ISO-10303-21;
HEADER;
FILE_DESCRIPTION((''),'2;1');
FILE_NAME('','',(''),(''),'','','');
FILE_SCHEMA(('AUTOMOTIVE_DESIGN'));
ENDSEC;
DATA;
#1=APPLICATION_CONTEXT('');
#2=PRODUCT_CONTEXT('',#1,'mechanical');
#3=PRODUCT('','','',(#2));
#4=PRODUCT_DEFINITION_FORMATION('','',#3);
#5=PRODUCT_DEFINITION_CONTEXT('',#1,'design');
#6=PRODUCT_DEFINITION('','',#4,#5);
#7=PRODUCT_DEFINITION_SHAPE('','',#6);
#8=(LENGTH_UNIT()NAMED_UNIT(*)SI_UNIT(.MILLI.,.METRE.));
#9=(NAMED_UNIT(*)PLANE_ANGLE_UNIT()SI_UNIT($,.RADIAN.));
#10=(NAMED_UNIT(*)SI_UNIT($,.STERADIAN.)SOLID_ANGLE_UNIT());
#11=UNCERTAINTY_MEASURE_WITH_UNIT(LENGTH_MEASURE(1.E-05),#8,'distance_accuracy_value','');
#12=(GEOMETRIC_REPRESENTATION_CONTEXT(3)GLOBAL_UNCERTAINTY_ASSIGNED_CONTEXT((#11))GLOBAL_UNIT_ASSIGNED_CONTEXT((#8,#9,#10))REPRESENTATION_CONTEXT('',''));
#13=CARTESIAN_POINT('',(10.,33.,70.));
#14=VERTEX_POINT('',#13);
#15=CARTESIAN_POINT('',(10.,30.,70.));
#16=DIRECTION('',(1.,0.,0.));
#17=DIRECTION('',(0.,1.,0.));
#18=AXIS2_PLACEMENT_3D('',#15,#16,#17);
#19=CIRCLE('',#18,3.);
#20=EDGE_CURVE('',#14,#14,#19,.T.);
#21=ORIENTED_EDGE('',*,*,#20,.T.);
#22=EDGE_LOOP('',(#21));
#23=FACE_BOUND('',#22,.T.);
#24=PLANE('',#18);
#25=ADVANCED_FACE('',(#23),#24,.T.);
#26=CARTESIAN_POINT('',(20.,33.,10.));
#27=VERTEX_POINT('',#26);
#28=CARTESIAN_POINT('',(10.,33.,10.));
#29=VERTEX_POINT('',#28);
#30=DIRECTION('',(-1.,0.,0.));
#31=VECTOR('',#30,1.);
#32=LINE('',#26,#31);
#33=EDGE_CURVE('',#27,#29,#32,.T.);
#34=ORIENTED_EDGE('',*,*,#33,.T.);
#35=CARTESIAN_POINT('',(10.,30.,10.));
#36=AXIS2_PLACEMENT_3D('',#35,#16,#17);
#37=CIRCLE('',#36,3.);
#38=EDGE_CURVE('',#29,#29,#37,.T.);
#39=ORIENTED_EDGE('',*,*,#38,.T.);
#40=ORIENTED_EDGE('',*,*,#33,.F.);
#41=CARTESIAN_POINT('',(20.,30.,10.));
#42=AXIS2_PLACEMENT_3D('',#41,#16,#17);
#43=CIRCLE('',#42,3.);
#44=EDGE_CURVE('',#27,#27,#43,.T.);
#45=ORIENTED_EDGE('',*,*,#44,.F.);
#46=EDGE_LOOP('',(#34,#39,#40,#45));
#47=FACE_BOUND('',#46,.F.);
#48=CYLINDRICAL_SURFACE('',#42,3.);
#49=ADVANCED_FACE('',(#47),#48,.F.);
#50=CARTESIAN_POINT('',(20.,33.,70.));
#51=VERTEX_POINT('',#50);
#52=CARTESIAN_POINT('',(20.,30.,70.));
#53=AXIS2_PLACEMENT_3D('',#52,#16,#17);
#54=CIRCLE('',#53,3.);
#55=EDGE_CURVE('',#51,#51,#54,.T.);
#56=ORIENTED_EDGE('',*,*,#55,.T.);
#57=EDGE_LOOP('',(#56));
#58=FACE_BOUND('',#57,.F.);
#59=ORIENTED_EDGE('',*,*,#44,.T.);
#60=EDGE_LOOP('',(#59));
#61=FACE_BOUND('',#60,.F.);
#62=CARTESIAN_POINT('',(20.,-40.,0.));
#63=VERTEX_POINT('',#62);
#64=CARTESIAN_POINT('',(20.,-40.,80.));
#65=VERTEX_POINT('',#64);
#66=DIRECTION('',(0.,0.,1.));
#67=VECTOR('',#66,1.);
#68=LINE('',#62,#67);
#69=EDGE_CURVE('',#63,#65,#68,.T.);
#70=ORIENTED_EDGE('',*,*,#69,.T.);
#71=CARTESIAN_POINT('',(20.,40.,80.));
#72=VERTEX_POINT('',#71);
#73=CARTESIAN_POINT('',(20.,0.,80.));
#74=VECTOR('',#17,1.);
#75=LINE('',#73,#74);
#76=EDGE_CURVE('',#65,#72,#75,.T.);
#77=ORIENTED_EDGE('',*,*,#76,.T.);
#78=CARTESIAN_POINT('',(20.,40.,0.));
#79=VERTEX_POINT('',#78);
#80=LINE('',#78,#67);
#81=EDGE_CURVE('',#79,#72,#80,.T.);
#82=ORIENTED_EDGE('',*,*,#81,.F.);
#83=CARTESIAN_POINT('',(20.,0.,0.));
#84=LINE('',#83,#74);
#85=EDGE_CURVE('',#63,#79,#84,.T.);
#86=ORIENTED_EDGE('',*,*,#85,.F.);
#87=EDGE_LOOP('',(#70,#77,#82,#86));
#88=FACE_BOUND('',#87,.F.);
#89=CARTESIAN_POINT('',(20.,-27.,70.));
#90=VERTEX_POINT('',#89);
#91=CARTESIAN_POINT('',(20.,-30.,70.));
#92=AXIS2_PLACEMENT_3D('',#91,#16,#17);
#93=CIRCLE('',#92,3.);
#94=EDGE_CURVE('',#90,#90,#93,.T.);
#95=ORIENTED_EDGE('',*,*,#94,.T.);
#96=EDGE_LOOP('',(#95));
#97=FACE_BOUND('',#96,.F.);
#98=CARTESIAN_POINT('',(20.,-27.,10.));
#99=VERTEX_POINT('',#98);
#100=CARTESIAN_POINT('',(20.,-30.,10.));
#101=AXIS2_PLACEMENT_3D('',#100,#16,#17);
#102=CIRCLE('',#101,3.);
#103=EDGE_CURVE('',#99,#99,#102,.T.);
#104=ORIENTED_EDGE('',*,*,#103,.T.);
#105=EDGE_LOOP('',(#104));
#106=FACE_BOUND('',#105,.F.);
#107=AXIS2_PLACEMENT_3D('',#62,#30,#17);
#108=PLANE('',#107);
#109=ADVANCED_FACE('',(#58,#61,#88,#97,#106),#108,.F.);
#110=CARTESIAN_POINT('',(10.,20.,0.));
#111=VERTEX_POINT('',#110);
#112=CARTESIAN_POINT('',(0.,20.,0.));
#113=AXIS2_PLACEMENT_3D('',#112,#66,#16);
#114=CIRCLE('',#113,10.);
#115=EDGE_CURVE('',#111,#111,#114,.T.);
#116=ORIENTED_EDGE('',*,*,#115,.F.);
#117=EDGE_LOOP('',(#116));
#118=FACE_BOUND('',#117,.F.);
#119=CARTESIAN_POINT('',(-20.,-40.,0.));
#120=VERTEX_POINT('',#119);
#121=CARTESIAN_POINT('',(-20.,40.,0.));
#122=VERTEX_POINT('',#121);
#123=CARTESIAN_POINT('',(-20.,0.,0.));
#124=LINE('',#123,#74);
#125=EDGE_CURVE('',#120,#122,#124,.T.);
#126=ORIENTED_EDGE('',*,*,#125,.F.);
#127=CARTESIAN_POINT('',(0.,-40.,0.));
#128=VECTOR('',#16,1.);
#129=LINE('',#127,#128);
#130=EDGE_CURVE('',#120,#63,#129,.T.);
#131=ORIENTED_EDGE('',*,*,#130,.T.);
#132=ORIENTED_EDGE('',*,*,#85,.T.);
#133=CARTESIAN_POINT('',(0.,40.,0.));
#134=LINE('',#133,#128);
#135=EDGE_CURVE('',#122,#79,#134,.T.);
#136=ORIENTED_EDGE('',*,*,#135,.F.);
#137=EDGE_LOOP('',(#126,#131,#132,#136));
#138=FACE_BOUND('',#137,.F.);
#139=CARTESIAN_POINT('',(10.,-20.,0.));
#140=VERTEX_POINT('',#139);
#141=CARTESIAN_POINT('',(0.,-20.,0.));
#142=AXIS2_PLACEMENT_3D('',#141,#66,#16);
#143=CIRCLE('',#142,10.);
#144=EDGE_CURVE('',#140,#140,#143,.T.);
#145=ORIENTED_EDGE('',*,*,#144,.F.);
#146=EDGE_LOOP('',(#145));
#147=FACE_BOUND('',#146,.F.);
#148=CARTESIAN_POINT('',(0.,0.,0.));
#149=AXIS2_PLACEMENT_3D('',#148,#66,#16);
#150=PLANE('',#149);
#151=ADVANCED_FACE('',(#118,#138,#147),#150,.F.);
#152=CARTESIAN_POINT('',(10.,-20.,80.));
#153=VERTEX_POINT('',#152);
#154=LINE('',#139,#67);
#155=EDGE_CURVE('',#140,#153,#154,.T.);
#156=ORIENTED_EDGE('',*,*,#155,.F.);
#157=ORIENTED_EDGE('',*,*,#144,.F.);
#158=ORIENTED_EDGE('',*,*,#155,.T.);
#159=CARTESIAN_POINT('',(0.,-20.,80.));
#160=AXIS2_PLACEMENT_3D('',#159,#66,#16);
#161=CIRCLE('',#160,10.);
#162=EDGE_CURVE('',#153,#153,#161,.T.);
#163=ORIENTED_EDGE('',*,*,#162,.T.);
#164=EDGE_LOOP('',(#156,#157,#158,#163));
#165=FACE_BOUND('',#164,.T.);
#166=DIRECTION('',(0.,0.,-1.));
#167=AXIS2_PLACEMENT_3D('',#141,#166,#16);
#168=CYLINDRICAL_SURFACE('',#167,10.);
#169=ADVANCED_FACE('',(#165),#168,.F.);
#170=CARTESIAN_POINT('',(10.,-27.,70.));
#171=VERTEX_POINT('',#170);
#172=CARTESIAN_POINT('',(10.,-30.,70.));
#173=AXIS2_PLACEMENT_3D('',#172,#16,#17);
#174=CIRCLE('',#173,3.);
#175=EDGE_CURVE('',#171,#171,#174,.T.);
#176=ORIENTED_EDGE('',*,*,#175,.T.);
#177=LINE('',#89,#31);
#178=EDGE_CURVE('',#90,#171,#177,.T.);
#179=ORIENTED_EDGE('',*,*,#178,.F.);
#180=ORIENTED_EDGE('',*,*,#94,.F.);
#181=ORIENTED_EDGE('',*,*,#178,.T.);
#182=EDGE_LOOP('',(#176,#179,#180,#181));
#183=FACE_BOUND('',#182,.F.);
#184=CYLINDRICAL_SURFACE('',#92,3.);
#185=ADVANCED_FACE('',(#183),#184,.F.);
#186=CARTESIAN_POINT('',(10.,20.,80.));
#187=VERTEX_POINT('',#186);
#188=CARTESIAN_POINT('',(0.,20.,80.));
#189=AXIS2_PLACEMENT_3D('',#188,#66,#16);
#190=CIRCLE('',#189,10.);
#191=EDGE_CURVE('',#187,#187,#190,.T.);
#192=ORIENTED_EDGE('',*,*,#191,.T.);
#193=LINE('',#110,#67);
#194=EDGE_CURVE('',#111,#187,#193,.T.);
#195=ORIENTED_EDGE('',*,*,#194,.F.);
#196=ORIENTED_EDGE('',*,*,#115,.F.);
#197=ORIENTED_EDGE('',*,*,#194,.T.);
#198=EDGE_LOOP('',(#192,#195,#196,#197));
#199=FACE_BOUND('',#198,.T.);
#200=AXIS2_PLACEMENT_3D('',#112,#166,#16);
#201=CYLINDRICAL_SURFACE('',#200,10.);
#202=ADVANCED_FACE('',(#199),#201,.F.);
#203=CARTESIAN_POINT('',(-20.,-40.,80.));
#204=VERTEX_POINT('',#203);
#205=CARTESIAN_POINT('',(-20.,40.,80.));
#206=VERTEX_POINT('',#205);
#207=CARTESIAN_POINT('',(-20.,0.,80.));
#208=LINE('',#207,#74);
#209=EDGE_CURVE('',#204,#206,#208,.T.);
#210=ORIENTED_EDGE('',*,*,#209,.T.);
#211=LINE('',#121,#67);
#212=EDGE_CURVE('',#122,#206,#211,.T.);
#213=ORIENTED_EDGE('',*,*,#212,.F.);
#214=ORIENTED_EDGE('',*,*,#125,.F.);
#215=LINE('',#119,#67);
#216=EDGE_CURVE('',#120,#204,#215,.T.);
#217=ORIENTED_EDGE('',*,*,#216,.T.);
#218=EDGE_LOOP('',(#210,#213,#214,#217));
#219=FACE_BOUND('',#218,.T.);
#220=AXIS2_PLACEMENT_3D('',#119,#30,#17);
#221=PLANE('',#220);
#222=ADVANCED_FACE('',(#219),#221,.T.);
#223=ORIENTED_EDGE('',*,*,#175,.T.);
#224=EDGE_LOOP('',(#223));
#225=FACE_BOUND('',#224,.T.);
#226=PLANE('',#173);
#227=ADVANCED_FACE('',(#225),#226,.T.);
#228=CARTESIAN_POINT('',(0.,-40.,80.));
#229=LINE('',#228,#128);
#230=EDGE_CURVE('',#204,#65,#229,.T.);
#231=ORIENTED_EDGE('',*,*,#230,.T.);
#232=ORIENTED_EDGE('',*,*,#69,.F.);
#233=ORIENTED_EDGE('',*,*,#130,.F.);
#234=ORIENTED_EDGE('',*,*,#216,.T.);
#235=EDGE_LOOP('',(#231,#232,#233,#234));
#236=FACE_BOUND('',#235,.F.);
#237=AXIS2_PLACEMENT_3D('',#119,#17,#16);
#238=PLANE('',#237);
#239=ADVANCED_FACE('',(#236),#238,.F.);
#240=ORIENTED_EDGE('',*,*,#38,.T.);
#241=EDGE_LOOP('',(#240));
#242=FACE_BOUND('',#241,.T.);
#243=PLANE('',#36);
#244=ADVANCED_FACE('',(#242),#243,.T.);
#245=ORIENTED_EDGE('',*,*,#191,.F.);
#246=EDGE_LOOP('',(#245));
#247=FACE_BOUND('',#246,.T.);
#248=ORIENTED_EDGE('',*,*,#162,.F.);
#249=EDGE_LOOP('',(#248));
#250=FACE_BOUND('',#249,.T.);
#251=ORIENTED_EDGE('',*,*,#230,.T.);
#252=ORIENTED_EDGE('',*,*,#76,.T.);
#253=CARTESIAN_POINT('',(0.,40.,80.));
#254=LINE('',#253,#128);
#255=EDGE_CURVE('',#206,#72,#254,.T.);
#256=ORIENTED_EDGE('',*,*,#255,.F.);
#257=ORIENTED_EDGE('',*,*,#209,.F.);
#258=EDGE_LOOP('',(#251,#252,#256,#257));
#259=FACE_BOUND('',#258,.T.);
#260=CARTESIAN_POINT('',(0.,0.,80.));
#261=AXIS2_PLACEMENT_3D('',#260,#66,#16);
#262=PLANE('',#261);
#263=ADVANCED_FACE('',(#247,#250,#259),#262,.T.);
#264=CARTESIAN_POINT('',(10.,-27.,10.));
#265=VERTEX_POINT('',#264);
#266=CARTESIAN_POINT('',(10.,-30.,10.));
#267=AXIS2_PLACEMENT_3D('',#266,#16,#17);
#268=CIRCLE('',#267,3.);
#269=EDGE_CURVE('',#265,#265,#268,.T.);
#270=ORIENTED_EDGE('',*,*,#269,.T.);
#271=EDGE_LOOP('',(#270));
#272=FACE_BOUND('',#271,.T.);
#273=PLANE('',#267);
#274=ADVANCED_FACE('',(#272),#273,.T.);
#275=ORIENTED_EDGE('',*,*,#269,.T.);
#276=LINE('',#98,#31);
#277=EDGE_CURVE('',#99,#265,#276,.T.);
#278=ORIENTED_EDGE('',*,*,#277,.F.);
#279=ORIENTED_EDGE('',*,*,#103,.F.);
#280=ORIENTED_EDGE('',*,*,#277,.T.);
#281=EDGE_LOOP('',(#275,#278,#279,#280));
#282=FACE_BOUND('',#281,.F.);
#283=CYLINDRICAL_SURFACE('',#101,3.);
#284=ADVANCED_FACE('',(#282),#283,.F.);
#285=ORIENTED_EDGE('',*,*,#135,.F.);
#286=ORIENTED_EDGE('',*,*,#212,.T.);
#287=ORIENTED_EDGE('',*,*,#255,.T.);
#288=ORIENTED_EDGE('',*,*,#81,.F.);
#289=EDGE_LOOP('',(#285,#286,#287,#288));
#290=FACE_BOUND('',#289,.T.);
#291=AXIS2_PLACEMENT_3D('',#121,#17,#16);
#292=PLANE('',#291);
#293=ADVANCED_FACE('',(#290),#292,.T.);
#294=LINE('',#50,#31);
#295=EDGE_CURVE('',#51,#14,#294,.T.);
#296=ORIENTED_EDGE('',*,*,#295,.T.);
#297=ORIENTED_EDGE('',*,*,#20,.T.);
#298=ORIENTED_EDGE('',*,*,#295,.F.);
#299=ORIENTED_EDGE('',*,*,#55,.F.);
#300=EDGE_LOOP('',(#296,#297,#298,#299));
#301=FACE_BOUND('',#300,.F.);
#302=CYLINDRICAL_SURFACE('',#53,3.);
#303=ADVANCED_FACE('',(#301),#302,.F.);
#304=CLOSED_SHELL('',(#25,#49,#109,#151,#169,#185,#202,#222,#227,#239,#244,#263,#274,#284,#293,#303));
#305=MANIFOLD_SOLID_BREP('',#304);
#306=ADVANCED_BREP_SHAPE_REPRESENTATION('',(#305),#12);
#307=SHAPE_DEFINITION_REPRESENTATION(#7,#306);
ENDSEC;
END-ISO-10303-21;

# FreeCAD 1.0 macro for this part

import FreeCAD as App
import Part
import Sketcher

doc = App.newDocument("Part")
body = doc.addObject("PartDesign::Body", "Body")

# Sketch on XY plane
sketch1 = body.newObject("Sketcher::SketchObject", "Sketch")
sketch1.AttachmentSupport = (doc.getObject("XY_Plane"), [""])
sketch1.MapMode = "FlatFace"
sketch1.addGeometry([
    Part.LineSegment(App.Vector(-20, 40, 0), App.Vector(-20, -40, 0)),  # 0
    Part.LineSegment(App.Vector(-20, -40, 0), App.Vector(20, -40, 0)),  # 1
    Part.LineSegment(App.Vector(20, -40, 0), App.Vector(20, 40, 0)),  # 2
    Part.LineSegment(App.Vector(20, 40, 0), App.Vector(-20, 40, 0)),  # 3
    Part.Circle(App.Vector(0, -20, 0), App.Vector(0, 0, 1), 10),  # 4
    Part.Circle(App.Vector(0, 20, 0), App.Vector(0, 0, 1), 10),  # 5
], False)
sketch1.addConstraint([
    Sketcher.Constraint("Coincident", 0, 2, 1, 1),
    Sketcher.Constraint("Coincident", 1, 2, 2, 1),
    Sketcher.Constraint("Coincident", 2, 2, 3, 1),
    Sketcher.Constraint("Coincident", 3, 2, 0, 1),
    Sketcher.Constraint("Vertical", 0),
    Sketcher.Constraint("Horizontal", 1),
    Sketcher.Constraint("Vertical", 2),
    Sketcher.Constraint("Horizontal", 3),
    Sketcher.Constraint("Equal", 4, 5),
    Sketcher.Constraint("Symmetric", 4, 3, 5, 3, -1, 1),
    Sketcher.Constraint("Symmetric", 0, 2, 2, 2, -1, 1),
    Sketcher.Constraint("PointOnObject", 4, 3, -2),
    Sketcher.Constraint("Diameter", 4, 20.0),
    Sketcher.Constraint("DistanceX", 1, 1, 1, 2, 40.0),
    Sketcher.Constraint("DistanceY", 0, 2, 0, 1, 80.0),
    Sketcher.Constraint("DistanceY", 4, 3, -1, 1, 20.0),
])
pad1 = body.newObject("PartDesign::Pad", "Pad")
pad1.Profile = sketch1
pad1.Length = 80

# Sketch on YZ plane
sketch2 = body.newObject("Sketcher::SketchObject", "Sketch001")
sketch2.AttachmentSupport = (doc.getObject("YZ_Plane"), [""])
sketch2.MapMode = "FlatFace"
sketch2.AttachmentOffset = App.Placement(App.Vector(0, 0, 20), App.Rotation())
sketch2.addGeometry([
    Part.Circle(App.Vector(30, 70, 0), App.Vector(0, 0, 1), 3),
    Part.Circle(App.Vector(-30, 70, 0), App.Vector(0, 0, 1), 3),
    Part.Circle(App.Vector(-30, 10, 0), App.Vector(0, 0, 1), 3),
    Part.Circle(App.Vector(30, 10, 0), App.Vector(0, 0, 1), 3),
], False)
sketch2.addConstraint([
    Sketcher.Constraint("Equal", 0, 1),
    Sketcher.Constraint("Equal", 1, 2),
    Sketcher.Constraint("Equal", 2, 3),
    Sketcher.Constraint("Symmetric", 0, 3, 1, 3, -2),
    Sketcher.Constraint("Symmetric", 2, 3, 3, 3, -2),
    Sketcher.Constraint("Vertical", 1, 3, 2, 3),
    Sketcher.Constraint("Diameter", 0, 6.0),
    Sketcher.Constraint("DistanceX", -1, 1, 0, 3, 30.0),
    Sketcher.Constraint("DistanceY", -1, 1, 0, 3, 70.0),
    Sketcher.Constraint("DistanceY", -1, 1, 2, 3, 10.0),
])
pocket1 = body.newObject("PartDesign::Pocket", "Pocket")
pocket1.Profile = sketch2
pocket1.Length = 10

doc.recompute()
